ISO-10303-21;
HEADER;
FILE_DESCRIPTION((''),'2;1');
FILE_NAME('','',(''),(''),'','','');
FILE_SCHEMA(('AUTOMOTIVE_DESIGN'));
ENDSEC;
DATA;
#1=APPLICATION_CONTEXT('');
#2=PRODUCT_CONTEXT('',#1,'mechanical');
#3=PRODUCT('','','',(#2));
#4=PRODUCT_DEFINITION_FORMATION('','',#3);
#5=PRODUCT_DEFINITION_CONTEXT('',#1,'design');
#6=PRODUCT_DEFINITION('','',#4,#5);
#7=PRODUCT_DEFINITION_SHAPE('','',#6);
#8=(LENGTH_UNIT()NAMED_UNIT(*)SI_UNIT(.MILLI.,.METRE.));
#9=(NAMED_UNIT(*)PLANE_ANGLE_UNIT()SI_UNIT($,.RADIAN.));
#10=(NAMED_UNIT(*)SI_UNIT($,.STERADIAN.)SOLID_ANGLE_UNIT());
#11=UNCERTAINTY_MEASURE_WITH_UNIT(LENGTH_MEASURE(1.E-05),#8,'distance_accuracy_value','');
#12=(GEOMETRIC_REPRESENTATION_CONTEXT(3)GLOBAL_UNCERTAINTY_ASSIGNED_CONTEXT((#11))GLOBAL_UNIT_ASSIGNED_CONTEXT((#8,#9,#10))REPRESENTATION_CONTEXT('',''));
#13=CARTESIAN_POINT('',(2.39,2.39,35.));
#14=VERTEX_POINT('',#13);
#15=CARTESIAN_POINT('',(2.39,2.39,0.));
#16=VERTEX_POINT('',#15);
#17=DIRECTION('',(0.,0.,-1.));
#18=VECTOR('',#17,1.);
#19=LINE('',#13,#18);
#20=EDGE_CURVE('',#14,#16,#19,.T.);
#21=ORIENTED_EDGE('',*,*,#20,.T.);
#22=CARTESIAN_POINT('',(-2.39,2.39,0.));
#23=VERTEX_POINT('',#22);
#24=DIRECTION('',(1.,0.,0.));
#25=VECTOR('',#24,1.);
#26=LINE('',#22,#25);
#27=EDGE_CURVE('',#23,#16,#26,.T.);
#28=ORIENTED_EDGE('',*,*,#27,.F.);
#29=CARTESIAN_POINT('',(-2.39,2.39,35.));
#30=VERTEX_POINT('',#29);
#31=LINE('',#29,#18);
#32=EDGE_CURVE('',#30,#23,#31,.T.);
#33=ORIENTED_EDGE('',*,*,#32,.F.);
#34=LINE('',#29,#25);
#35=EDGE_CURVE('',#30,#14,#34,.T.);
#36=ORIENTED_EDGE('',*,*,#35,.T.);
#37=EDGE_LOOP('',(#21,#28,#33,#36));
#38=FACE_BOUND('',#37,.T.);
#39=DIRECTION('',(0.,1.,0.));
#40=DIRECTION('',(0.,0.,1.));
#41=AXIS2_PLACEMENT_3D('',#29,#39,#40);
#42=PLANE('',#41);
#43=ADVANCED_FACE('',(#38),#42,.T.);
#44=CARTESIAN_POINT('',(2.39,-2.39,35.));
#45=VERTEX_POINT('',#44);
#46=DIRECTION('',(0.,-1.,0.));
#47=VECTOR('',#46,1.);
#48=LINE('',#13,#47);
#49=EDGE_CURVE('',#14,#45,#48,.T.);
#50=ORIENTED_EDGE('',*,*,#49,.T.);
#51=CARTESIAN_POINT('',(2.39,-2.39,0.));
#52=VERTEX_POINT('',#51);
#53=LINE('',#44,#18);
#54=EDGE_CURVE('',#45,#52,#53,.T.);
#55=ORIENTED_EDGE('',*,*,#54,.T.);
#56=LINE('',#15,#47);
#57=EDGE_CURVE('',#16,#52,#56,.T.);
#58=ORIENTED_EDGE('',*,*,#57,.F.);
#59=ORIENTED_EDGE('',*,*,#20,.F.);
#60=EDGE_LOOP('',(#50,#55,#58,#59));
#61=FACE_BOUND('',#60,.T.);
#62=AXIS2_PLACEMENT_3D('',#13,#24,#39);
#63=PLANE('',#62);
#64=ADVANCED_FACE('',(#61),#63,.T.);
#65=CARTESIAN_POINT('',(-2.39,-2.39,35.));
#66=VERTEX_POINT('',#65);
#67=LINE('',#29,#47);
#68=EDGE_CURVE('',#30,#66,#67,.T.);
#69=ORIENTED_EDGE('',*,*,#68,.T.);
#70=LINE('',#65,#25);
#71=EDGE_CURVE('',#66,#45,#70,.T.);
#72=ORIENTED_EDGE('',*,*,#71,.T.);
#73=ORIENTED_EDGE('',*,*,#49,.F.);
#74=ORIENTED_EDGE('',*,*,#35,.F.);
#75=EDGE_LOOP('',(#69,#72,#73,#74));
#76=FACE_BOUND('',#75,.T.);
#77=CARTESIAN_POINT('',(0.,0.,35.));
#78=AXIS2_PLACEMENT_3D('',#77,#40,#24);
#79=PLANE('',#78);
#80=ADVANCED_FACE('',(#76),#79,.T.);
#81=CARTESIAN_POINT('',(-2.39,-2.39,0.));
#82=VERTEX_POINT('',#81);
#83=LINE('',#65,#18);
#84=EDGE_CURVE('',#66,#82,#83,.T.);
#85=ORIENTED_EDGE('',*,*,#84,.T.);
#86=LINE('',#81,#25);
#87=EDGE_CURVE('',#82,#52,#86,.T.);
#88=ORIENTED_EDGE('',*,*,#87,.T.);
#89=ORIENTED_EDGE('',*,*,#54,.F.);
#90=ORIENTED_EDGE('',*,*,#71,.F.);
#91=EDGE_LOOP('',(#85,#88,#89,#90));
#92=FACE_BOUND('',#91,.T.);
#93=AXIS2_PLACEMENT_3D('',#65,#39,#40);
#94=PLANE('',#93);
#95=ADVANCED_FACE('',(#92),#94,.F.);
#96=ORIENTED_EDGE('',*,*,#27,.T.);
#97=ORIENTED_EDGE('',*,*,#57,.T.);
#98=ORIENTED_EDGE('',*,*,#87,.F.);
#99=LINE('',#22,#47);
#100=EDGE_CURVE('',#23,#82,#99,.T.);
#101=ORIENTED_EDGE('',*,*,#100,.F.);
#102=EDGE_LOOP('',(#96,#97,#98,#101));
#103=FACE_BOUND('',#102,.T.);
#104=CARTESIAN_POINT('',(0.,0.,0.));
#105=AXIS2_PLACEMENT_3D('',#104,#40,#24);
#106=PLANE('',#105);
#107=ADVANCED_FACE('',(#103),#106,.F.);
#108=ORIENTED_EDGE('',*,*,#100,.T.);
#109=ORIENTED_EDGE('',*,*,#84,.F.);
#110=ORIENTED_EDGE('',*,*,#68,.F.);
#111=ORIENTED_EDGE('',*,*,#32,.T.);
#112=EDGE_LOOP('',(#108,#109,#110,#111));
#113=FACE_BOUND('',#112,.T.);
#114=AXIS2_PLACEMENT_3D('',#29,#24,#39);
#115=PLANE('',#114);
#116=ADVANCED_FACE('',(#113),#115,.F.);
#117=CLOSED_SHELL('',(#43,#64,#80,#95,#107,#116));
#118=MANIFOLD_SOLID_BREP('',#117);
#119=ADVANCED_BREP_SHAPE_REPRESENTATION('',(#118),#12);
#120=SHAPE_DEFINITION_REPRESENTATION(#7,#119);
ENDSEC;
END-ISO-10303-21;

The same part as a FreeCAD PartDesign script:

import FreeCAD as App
import Part
import Sketcher
Q = App.Units.Quantity

doc = App.newDocument("Part")
body = doc.addObject("PartDesign::Body", "Body")

sketch1 = doc.addObject("Sketcher::SketchObject", "Sketch")
body.addObject(sketch1)
sketch1.AttachmentSupport = (doc.XY_Plane, [""])
sketch1.MapMode = "FlatFace"
sketch1.addGeometry(Part.LineSegment(App.Vector(-2.4, 2.4, 0), App.Vector(-2.4, -2.4, 0)), False)
sketch1.addGeometry(Part.LineSegment(App.Vector(-2.4, -2.4, 0), App.Vector(2.4, -2.4, 0)), False)
sketch1.addGeometry(Part.LineSegment(App.Vector(2.4, -2.4, 0), App.Vector(2.4, 2.4, 0)), False)
sketch1.addGeometry(Part.LineSegment(App.Vector(2.4, 2.4, 0), App.Vector(-2.4, 2.4, 0)), False)
sketch1.addConstraint(Sketcher.Constraint("Coincident", 0, 2, 1, 1))
sketch1.addConstraint(Sketcher.Constraint("Coincident", 1, 2, 2, 1))
sketch1.addConstraint(Sketcher.Constraint("Coincident", 2, 2, 3, 1))
sketch1.addConstraint(Sketcher.Constraint("Coincident", 3, 2, 0, 1))
sketch1.addConstraint(Sketcher.Constraint("Vertical", 0))
sketch1.addConstraint(Sketcher.Constraint("Horizontal", 1))
sketch1.addConstraint(Sketcher.Constraint("Vertical", 2))
sketch1.addConstraint(Sketcher.Constraint("Horizontal", 3))
sketch1.addConstraint(Sketcher.Constraint("Symmetric", 0, 2, 2, 2, -1, 1))
sketch1.addConstraint(Sketcher.Constraint("Equal", 3, 0))
sketch1.addConstraint(Sketcher.Constraint("DistanceX", 1, 1, 1, 2, Q("4.78 mm")))
pad1 = doc.addObject("PartDesign::Pad", "Pad")
body.addObject(pad1)
pad1.Profile = sketch1
pad1.Length = 35

doc.recompute()
